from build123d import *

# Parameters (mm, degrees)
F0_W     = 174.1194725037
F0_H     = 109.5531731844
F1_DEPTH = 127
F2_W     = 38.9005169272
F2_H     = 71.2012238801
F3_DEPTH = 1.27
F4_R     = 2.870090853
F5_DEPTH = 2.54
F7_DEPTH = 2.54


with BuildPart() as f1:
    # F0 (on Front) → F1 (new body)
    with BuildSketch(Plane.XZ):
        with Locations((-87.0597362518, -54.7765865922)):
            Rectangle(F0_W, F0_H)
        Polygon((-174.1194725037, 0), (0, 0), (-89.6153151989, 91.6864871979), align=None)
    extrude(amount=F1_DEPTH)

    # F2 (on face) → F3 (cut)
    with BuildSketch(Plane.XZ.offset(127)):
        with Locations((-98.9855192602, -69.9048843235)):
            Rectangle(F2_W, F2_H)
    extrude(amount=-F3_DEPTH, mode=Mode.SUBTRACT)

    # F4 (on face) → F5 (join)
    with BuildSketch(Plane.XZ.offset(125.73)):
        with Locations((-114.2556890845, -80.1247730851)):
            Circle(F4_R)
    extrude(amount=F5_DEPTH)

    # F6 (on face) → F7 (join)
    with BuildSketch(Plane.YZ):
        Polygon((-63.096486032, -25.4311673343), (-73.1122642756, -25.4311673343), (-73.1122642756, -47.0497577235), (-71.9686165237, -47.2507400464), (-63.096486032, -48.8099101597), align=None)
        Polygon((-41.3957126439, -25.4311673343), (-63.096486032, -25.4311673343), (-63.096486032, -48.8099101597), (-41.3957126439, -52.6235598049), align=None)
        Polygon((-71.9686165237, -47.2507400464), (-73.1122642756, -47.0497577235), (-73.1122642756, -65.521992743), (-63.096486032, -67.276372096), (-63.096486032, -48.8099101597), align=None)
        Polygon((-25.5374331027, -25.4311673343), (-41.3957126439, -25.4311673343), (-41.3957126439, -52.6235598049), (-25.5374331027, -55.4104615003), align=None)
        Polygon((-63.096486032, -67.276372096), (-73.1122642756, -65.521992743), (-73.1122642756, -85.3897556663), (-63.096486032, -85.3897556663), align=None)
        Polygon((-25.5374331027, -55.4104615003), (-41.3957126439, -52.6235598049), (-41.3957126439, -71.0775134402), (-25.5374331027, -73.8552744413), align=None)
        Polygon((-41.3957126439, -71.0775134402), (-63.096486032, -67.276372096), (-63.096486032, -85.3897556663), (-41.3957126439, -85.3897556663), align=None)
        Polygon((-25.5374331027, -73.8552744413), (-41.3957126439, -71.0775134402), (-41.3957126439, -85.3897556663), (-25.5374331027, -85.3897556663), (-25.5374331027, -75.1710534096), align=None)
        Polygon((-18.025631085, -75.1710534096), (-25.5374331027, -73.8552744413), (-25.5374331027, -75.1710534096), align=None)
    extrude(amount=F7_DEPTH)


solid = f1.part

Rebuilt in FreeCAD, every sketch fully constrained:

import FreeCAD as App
import Part
import Sketcher
Q = App.Units.Quantity


def add_polygon(sketch, points):
    """Adds a closed chain of lines whose ends are joined by coincident constraints."""
    first, n = sketch.GeometryCount, len(points)
    for a, b in zip(points, points[1:] + points[:1]):
        sketch.addGeometry(Part.LineSegment(App.Vector(*a, 0), App.Vector(*b, 0)), False)
    for i in range(n):
        sketch.addConstraint(Sketcher.Constraint("Coincident", first + i, 2, first + (i + 1) % n, 1))

doc = App.newDocument("Part")
params = doc.addObject("Spreadsheet::Sheet", "Params")
for row, (alias, value) in enumerate([
    ("pad1_length", "5 in"),
    ("pocket1_length", "0.05 in"),
    ("pad2_length", "0.1 in"),
    ("pad3_length", "0.1 in"),
], start=1):
    params.set(f"A{row}", alias)
    params.set(f"B{row}", "=" + value)
    params.setAlias(f"B{row}", alias)

body = doc.addObject("PartDesign::Body", "Body")

# Sketch on XZ plane
sketch1 = doc.addObject("Sketcher::SketchObject", "Sketch")
body.addObject(sketch1)
sketch1.AttachmentSupport = (doc.XZ_Plane, [""])
sketch1.MapMode = "FlatFace"
add_polygon(sketch1, [(-174, 0), (-174, -110), (0, -110), (0, 0), (-90, 92)])  # lines 0-4
sketch1.addConstraint(Sketcher.Constraint("Vertical", 0))
sketch1.addConstraint(Sketcher.Constraint("Horizontal", 1))
sketch1.addConstraint(Sketcher.Constraint("Vertical", 2))
sketch1.addConstraint(Sketcher.Constraint("Coincident", 2, 2, -1, 1))
sketch1.addConstraint(Sketcher.Constraint("PointOnObject", 4, 2, -1))
sketch1.addConstraint(Sketcher.Constraint("Distance", 3, Q("128.208099 mm")))
sketch1.addConstraint(Sketcher.Constraint("Distance", 4, Q("124.689071 mm")))
sketch1.addConstraint(Sketcher.Constraint("DistanceX", 1, 1, 1, 2, Q("174.119473 mm")))
sketch1.addConstraint(Sketcher.Constraint("DistanceY", 0, 2, 0, 1, Q("109.553173 mm")))
pad1 = doc.addObject("PartDesign::Pad", "Pad")
body.addObject(pad1)
pad1.Profile = sketch1
pad1.setExpression("Length", "Params.pad1_length")

# Sketch on XZ plane
sketch2 = doc.addObject("Sketcher::SketchObject", "Sketch001")
body.addObject(sketch2)
sketch2.AttachmentSupport = (doc.XZ_Plane, [""])
sketch2.MapMode = "FlatFace"
sketch2.AttachmentOffset = App.Placement(App.Vector(0, 0, 5 * 25.4), App.Rotation())
add_polygon(sketch2, [(-118, -34), (-118, -106), (-80, -106), (-80, -34)])  # lines 0-3
sketch2.addConstraint(Sketcher.Constraint("Vertical", 0))
sketch2.addConstraint(Sketcher.Constraint("Horizontal", 1))
sketch2.addConstraint(Sketcher.Constraint("Vertical", 2))
sketch2.addConstraint(Sketcher.Constraint("Horizontal", 3))
sketch2.addConstraint(Sketcher.Constraint("DistanceX", 1, 1, 1, 2, Q("38.900517 mm")))
sketch2.addConstraint(Sketcher.Constraint("DistanceY", 0, 2, 0, 1, Q("71.201224 mm")))
sketch2.addConstraint(Sketcher.Constraint("DistanceX", 1, 2, -1, 1, Q("79.535261 mm")))
sketch2.addConstraint(Sketcher.Constraint("DistanceY", 0, 2, -1, 1, Q("105.505496 mm")))
pocket1 = doc.addObject("PartDesign::Pocket", "Pocket")
body.addObject(pocket1)
pocket1.Profile = sketch2
pocket1.setExpression("Length", "Params.pocket1_length")

# Sketch on XZ plane
sketch3 = doc.addObject("Sketcher::SketchObject", "Sketch002")
body.addObject(sketch3)
sketch3.AttachmentSupport = (doc.XZ_Plane, [""])
sketch3.MapMode = "FlatFace"
sketch3.AttachmentOffset = App.Placement(App.Vector(0, 0, 4.95 * 25.4), App.Rotation())
sketch3.addGeometry(Part.Circle(App.Vector(-114.3, -80.1, 0), App.Vector(0, 0, 1), 2.9), False)
sketch3.addConstraint(Sketcher.Constraint("Diameter", 0, Q("5.740182 mm")))
sketch3.addConstraint(Sketcher.Constraint("DistanceX", 0, 3, -1, 1, Q("114.255689 mm")))
sketch3.addConstraint(Sketcher.Constraint("DistanceY", 0, 3, -1, 1, Q("80.124773 mm")))
pad2 = doc.addObject("PartDesign::Pad", "Pad001")
body.addObject(pad2)
pad2.Profile = sketch3
pad2.setExpression("Length", "Params.pad2_length")

# Sketch on YZ plane
sketch4 = doc.addObject("Sketcher::SketchObject", "Sketch003")
body.addObject(sketch4)
sketch4.AttachmentSupport = (doc.YZ_Plane, [""])
sketch4.MapMode = "FlatFace"
add_polygon(sketch4, [(-73.112264, -85.389756), (-25.537433, -85.389756), (-25.537433, -75.171053), (-18.025631, -75.171053), (-25.537433, -73.855274), (-25.537433, -25.431167), (-73.112264, -25.431167)])  # lines 0-6
add_polygon(sketch4, [(-41.395713, -52.62356), (-41.395713, -71.077513), (-63.096486, -67.276372), (-63.096486, -48.80991)])  # lines 7-10
sketch4.addConstraint(Sketcher.Constraint("Horizontal", 0))
sketch4.addConstraint(Sketcher.Constraint("Vertical", 1))
sketch4.addConstraint(Sketcher.Constraint("Horizontal", 2))
sketch4.addConstraint(Sketcher.Constraint("Vertical", 4))
sketch4.addConstraint(Sketcher.Constraint("Horizontal", 5))
sketch4.addConstraint(Sketcher.Constraint("Vertical", 6))
sketch4.addConstraint(Sketcher.Constraint("Vertical", 7))
sketch4.addConstraint(Sketcher.Constraint("Vertical", 9))
sketch4.addConstraint(Sketcher.Constraint("Parallel", 3, 8))
sketch4.addConstraint(Sketcher.Constraint("Vertical", 1, 2, 3, 2))
sketch4.addConstraint(Sketcher.Constraint("DistanceX", 0, 1, 0, 2, Q("47.574831 mm")))
sketch4.addConstraint(Sketcher.Constraint("DistanceY", 6, 2, 6, 1, Q("59.958588 mm")))
sketch4.addConstraint(Sketcher.Constraint("DistanceY", 9, 1, 9, 2, Q("18.466462 mm")))
sketch4.addConstraint(Sketcher.Constraint("Distance", 3, Q("7.626168 mm")))
sketch4.addConstraint(Sketcher.Constraint("DistanceX", 2, 1, 2, 2, Q("7.511802 mm")))
sketch4.addConstraint(Sketcher.Constraint("DistanceY", 1, 1, 1, 2, Q("10.218702 mm")))
sketch4.addConstraint(Sketcher.Constraint("DistanceY", 7, 2, 7, 1, Q("18.453954 mm")))
sketch4.addConstraint(Sketcher.Constraint("DistanceX", 2, 2, -1, 1, Q("18.025631 mm")))
sketch4.addConstraint(Sketcher.Constraint("DistanceY", 9, 2, -1, 1, Q("48.80991 mm")))
sketch4.addConstraint(Sketcher.Constraint("DistanceY", 10, 2, -1, 1, Q("52.62356 mm")))
sketch4.addConstraint(Sketcher.Constraint("DistanceX", 7, 2, 3, 2, Q("15.85828 mm")))
sketch4.addConstraint(Sketcher.Constraint("DistanceY", 3, 2, 7, 2, Q("2.777761 mm")))
pad3 = doc.addObject("PartDesign::Pad", "Pad002")
body.addObject(pad3)
pad3.Profile = sketch4
pad3.setExpression("Length", "Params.pad3_length")

doc.recompute()
